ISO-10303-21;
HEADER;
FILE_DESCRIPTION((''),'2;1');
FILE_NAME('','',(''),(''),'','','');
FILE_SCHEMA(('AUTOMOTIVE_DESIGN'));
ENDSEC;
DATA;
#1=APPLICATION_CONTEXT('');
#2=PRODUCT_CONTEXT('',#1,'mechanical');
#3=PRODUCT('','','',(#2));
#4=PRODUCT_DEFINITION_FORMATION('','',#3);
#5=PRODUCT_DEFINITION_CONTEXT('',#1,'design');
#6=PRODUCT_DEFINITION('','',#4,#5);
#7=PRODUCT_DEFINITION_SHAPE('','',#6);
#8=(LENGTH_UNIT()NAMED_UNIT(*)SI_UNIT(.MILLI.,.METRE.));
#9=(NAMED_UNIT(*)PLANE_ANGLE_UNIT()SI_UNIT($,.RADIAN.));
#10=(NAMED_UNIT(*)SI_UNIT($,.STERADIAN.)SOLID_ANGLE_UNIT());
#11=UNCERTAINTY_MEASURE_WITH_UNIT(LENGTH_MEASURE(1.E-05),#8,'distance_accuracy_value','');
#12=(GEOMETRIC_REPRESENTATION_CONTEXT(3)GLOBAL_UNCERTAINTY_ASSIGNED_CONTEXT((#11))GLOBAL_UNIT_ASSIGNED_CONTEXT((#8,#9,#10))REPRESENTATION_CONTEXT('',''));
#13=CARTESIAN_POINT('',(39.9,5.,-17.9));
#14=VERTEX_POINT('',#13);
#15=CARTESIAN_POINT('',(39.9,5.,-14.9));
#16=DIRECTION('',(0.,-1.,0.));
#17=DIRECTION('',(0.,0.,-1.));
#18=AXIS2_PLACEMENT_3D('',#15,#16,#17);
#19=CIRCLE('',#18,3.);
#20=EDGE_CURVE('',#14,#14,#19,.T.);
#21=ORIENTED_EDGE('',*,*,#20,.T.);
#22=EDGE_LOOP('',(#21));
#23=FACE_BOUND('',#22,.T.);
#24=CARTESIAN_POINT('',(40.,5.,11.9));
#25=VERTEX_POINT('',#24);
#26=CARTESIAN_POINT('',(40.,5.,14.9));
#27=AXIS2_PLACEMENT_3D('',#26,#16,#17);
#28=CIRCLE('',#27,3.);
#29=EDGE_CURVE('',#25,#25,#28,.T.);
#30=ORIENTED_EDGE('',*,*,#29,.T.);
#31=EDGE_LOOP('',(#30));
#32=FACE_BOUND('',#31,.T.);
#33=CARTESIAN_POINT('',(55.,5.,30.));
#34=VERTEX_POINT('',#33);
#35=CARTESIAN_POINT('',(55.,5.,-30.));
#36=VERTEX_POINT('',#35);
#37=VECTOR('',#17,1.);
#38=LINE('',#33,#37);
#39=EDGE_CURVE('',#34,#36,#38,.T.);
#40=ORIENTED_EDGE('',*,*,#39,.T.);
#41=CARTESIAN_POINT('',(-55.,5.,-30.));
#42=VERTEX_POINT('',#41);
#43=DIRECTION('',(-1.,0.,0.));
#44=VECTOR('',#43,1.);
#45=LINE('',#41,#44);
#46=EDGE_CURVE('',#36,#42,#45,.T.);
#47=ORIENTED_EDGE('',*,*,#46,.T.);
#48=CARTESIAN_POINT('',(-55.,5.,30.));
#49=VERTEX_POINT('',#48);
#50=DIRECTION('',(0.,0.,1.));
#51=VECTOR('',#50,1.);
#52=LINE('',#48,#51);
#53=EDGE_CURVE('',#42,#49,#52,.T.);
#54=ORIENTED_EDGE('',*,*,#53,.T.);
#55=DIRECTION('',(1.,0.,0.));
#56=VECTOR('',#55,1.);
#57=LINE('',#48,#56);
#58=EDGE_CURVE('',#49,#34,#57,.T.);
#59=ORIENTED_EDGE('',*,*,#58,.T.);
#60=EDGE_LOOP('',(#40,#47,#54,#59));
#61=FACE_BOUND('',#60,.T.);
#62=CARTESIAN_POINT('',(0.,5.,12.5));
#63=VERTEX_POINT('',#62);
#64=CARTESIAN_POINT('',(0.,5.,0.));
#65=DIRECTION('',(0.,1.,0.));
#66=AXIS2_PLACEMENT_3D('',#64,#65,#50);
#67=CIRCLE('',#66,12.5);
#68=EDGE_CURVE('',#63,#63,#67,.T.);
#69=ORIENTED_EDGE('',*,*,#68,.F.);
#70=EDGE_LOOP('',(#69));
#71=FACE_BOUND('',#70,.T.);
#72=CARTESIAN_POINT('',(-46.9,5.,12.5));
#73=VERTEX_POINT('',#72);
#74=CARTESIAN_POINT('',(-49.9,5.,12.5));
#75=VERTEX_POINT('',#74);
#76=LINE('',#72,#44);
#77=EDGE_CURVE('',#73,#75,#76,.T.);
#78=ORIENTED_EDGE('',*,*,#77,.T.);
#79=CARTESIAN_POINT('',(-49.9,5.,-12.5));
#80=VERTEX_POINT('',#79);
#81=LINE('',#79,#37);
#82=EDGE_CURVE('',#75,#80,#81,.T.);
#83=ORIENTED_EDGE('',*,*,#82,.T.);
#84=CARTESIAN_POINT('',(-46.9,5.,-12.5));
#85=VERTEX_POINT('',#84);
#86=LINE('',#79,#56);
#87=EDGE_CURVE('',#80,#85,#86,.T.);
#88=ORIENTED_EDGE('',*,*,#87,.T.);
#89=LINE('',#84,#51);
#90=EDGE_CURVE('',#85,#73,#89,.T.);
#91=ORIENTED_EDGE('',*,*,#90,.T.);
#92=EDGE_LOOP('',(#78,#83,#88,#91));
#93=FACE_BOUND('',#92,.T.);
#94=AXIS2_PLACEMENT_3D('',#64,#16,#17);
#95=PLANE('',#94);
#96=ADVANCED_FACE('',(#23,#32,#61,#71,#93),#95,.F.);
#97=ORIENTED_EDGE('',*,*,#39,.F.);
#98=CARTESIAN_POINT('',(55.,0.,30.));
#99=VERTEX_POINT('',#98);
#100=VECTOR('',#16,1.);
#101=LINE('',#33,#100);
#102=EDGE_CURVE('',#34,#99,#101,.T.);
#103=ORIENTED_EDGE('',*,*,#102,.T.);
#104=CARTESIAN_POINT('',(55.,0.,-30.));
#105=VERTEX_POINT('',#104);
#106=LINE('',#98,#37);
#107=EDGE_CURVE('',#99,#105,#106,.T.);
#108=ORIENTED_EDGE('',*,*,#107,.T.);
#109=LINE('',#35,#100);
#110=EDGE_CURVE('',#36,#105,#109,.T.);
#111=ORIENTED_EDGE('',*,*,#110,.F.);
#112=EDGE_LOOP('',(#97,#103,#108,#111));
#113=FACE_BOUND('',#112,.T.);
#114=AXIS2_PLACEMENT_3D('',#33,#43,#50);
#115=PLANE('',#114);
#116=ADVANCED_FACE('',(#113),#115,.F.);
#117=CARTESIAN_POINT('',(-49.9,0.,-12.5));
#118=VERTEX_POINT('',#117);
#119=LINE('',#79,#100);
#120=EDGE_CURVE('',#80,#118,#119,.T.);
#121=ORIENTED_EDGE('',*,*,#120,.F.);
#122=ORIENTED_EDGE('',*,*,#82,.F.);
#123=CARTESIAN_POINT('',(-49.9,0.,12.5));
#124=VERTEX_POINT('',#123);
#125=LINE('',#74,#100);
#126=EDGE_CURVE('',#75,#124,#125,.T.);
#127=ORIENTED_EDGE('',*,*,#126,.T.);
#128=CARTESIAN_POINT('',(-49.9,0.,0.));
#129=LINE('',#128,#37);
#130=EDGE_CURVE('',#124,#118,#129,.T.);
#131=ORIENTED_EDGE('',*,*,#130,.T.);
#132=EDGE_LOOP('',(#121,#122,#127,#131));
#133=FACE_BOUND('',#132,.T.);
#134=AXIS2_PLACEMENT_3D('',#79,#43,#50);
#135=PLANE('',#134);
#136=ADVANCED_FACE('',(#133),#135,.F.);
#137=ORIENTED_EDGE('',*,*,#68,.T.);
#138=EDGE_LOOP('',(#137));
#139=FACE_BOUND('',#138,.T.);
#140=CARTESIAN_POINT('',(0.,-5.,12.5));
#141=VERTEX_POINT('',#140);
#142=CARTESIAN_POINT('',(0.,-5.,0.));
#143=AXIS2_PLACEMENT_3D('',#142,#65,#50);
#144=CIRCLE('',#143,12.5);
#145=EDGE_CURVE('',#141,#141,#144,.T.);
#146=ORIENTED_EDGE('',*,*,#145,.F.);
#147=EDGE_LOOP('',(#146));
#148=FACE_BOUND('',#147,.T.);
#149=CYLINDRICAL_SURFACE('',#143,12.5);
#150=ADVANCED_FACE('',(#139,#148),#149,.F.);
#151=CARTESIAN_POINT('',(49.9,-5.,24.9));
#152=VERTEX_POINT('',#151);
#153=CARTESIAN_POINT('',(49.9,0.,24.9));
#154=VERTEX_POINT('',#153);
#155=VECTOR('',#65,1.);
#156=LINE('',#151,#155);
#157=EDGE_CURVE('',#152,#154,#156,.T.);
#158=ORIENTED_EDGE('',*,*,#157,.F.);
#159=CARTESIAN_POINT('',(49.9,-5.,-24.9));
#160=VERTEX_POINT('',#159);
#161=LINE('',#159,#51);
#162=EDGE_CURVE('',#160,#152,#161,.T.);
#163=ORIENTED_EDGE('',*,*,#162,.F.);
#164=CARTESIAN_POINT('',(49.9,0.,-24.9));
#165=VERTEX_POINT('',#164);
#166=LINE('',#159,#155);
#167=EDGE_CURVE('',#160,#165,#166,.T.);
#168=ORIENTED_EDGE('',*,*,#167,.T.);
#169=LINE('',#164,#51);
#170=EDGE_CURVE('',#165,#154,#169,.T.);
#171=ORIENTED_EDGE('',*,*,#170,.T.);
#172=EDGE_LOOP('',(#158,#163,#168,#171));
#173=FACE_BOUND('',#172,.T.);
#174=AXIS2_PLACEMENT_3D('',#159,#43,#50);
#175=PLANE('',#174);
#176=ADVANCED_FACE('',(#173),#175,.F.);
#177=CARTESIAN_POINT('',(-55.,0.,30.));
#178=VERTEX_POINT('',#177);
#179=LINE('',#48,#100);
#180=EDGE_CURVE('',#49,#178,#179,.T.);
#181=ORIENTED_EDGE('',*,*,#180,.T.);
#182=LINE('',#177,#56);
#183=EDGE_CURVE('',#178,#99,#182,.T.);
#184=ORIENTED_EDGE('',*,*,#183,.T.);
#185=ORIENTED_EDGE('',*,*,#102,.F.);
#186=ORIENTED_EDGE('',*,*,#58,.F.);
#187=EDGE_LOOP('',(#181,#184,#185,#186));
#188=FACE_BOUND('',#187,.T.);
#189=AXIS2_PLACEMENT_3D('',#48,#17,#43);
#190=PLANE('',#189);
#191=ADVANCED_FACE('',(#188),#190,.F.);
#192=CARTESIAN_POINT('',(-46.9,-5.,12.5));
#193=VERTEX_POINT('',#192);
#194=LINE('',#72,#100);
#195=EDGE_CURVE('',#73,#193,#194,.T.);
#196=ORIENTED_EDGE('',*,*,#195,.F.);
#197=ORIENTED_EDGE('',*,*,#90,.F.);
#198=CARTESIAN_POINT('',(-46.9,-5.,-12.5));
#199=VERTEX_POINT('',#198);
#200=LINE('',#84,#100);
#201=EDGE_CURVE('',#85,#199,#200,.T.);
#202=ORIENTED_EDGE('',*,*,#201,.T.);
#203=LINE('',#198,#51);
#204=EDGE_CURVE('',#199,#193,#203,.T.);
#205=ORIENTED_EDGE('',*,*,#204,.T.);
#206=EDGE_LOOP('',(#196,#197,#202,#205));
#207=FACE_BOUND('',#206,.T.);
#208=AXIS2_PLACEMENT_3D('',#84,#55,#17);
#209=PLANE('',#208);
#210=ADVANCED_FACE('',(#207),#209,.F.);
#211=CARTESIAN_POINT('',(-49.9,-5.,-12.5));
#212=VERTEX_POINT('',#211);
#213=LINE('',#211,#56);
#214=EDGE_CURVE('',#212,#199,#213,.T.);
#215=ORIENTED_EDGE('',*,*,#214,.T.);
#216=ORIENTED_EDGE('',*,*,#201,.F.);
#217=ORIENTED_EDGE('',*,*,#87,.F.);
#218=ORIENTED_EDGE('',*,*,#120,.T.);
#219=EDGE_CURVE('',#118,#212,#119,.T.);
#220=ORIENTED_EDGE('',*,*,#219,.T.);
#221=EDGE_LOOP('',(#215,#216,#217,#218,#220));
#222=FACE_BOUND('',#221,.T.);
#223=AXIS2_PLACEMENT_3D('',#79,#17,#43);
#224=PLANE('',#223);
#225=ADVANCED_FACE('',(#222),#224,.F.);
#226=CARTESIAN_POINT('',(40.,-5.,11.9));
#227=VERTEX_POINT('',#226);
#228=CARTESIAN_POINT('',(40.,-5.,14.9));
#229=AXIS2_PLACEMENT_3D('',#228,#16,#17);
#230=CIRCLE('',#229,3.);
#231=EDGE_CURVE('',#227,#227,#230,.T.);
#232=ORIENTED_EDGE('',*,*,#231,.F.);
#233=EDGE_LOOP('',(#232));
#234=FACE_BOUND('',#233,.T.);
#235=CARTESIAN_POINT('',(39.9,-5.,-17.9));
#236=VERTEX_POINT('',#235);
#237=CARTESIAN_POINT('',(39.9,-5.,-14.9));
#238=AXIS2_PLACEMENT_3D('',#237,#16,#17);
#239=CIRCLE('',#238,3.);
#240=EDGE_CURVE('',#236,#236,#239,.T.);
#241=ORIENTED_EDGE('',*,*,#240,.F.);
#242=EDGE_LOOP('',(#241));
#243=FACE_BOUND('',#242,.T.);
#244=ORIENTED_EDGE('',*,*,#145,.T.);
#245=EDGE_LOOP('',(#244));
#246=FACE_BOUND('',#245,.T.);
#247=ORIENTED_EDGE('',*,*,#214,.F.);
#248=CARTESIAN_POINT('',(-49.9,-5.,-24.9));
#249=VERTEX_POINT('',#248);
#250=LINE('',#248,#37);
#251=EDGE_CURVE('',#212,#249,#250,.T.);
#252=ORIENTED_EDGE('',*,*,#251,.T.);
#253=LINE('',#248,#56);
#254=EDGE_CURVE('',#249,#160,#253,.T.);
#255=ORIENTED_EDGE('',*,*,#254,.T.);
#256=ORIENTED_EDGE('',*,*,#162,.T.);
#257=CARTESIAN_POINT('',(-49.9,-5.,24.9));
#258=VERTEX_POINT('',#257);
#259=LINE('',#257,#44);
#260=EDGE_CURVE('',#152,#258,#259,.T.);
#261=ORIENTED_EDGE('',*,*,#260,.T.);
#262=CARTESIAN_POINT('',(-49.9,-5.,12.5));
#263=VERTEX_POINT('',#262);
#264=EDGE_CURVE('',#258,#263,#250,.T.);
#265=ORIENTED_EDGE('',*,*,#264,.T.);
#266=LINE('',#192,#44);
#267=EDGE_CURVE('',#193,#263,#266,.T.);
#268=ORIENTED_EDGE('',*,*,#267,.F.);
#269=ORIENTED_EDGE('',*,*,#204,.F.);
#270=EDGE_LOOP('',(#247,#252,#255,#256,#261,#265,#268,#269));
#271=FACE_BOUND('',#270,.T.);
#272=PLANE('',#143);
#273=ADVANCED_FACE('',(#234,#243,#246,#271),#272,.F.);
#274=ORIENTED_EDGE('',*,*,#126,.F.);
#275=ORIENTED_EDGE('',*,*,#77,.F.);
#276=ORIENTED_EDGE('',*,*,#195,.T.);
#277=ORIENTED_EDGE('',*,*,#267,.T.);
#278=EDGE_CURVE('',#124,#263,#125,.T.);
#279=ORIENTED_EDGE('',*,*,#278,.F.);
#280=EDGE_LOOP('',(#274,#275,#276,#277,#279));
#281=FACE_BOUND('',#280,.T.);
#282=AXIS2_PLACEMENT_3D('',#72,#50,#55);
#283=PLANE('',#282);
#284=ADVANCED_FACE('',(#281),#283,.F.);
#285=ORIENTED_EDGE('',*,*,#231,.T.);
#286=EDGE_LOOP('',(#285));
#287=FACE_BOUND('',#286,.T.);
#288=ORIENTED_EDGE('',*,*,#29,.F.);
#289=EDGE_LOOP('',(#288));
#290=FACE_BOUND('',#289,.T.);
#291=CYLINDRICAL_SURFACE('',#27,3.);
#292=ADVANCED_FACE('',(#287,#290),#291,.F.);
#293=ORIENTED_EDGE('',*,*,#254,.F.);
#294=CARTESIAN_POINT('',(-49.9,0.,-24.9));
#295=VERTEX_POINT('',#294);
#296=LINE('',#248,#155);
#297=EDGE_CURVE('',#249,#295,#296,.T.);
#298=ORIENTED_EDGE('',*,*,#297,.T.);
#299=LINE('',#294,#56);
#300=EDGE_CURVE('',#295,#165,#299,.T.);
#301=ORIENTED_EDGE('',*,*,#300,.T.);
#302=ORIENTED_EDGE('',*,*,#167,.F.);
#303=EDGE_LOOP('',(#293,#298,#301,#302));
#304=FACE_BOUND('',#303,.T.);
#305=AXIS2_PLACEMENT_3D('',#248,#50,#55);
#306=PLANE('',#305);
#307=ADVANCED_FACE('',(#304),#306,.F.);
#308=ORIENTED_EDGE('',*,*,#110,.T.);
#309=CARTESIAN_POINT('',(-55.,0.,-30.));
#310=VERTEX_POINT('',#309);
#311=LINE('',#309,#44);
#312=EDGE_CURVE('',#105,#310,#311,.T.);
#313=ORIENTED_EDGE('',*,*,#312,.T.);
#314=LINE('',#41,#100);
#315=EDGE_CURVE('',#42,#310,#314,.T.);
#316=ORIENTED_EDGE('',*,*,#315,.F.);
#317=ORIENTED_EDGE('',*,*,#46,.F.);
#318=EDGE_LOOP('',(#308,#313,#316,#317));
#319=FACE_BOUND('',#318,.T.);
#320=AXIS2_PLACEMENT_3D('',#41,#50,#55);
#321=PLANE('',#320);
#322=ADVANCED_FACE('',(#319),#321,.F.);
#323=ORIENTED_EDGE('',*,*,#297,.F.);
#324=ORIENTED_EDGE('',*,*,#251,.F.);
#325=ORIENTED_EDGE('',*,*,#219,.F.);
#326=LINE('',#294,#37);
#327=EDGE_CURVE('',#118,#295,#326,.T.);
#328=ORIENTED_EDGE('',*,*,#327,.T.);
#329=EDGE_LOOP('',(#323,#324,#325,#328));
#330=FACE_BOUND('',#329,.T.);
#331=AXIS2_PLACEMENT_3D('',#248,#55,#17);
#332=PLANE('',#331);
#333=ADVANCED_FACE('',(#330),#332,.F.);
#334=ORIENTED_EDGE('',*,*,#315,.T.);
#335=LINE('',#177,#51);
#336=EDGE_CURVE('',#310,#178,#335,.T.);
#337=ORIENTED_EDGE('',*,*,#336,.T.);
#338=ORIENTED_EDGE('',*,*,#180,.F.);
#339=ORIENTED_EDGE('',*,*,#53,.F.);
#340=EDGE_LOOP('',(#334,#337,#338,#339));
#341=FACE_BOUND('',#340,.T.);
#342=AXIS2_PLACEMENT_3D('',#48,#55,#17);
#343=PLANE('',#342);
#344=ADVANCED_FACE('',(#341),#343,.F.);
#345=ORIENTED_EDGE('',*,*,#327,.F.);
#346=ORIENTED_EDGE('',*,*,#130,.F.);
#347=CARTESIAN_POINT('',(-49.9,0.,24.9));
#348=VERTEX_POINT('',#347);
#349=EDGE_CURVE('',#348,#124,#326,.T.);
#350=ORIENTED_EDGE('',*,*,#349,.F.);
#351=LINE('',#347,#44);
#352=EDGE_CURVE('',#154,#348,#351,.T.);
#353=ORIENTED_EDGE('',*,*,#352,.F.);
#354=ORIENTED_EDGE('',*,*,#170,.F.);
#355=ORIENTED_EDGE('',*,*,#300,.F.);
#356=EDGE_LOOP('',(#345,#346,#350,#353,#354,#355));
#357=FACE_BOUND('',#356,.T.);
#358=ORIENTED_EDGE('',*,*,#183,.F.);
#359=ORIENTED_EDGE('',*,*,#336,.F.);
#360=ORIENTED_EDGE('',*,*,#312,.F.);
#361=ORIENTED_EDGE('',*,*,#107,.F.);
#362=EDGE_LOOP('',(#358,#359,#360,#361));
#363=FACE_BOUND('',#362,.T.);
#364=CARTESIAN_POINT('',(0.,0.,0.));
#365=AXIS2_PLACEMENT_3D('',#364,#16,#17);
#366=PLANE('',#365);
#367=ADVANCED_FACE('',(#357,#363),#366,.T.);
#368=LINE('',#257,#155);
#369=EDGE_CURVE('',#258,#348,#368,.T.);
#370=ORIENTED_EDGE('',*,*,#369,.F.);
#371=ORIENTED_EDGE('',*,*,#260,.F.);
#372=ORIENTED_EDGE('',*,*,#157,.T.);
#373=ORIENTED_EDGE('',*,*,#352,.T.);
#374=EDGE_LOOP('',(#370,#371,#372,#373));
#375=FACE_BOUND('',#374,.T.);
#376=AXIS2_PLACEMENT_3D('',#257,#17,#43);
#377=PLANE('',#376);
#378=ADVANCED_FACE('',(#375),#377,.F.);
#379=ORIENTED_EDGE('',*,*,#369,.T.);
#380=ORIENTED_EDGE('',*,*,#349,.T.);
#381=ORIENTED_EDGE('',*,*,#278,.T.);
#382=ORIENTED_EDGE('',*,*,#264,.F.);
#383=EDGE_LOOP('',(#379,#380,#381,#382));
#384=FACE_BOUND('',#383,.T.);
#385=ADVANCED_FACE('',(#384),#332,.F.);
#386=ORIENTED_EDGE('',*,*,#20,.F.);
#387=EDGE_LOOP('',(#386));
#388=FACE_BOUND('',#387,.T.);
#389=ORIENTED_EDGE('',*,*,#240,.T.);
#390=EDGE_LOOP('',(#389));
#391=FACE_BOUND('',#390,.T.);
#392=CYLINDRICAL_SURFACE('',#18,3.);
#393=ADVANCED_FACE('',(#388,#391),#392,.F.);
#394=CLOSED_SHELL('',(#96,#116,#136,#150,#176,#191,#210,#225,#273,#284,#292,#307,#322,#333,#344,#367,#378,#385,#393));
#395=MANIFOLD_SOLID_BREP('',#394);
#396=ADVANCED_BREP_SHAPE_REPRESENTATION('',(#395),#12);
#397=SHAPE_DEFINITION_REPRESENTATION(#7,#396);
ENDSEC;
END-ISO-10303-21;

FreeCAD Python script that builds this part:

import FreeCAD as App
import Part
import Sketcher

V = App.Vector


def add_polygon(sketch, points):
    """Adds a closed chain of lines whose ends are joined by coincident constraints."""
    first, n = sketch.GeometryCount, len(points)
    for a, b in zip(points, points[1:] + points[:1]):
        sketch.addGeometry(Part.LineSegment(App.Vector(*a, 0), App.Vector(*b, 0)), False)
    for i in range(n):
        sketch.addConstraint(Sketcher.Constraint("Coincident", first + i, 2, first + (i + 1) % n, 1))

doc = App.newDocument("Part")
body = doc.addObject("PartDesign::Body", "Body")

# Sketch on XZ plane
sketch1 = doc.addObject("Sketcher::SketchObject", "Sketch")
body.addObject(sketch1)
sketch1.AttachmentSupport = (doc.XZ_Plane, [""])
sketch1.MapMode = "FlatFace"
add_polygon(sketch1, [(-55, -30), (-55, 30), (55, 30), (55, -30)])  # lines 0-3
sketch1.addConstraint([
    Sketcher.Constraint("Vertical", 0),
    Sketcher.Constraint("Horizontal", 1),
    Sketcher.Constraint("Vertical", 2),
    Sketcher.Constraint("Horizontal", 3),
    Sketcher.Constraint("Symmetric", 0, 2, 2, 2, -1, 1),
    Sketcher.Constraint("DistanceX", 1, 1, 1, 2, 110.0),
    Sketcher.Constraint("DistanceY", 0, 1, 0, 2, 60.0),
])
pad1 = doc.addObject("PartDesign::Pad", "Pad")
body.addObject(pad1)
pad1.Profile = sketch1
pad1.Length = 5
pad1.Reversed = True

# Sketch on XZ plane
sketch2 = doc.addObject("Sketcher::SketchObject", "Sketch001")
body.addObject(sketch2)
sketch2.AttachmentSupport = (doc.XZ_Plane, [""])
sketch2.MapMode = "FlatFace"
add_polygon(sketch2, [(-49.9, 24.9), (-49.9, -24.9), (49.9, -24.9), (49.9, 24.9)])  # lines 0-3
sketch2.addConstraint([
    Sketcher.Constraint("Vertical", 0),
    Sketcher.Constraint("Horizontal", 1),
    Sketcher.Constraint("Vertical", 2),
    Sketcher.Constraint("Horizontal", 3),
    Sketcher.Constraint("Symmetric", 0, 2, 2, 2, -1, 1),
    Sketcher.Constraint("DistanceX", 1, 1, 1, 2, 99.8),
    Sketcher.Constraint("DistanceY", 0, 2, 0, 1, 49.8),
])
pad2 = doc.addObject("PartDesign::Pad", "Pad001")
body.addObject(pad2)
pad2.Profile = sketch2
pad2.Length = 5

# Sketch on XZ plane
sketch3 = doc.addObject("Sketcher::SketchObject", "Sketch002")
body.addObject(sketch3)
sketch3.AttachmentSupport = (doc.XZ_Plane, [""])
sketch3.MapMode = "FlatFace"
sketch3.AttachmentOffset = App.Placement(V(0, 0, 5), App.Rotation())
add_polygon(sketch3, [(-49.9, 12.5), (-49.9, -12.5), (-46.9, -12.5), (-46.9, 12.5)])  # lines 0-3
sketch3.addConstraint([
    Sketcher.Constraint("Vertical", 0),
    Sketcher.Constraint("Horizontal", 1),
    Sketcher.Constraint("Vertical", 2),
    Sketcher.Constraint("Horizontal", 3),
    Sketcher.Constraint("DistanceX", 1, 1, 1, 2, 3.0),
    Sketcher.Constraint("DistanceY", 0, 2, 0, 1, 25.0),
    Sketcher.Constraint("DistanceX", 0, 2, -1, 1, 49.9),
    Sketcher.Constraint("DistanceY", 0, 2, -1, 1, 12.5),
])
pocket1 = doc.addObject("PartDesign::Pocket", "Pocket")
body.addObject(pocket1)
pocket1.Profile = sketch3
pocket1.Length = 10

# Sketch on XZ plane
sketch4 = doc.addObject("Sketcher::SketchObject", "Sketch003")
body.addObject(sketch4)
sketch4.AttachmentSupport = (doc.XZ_Plane, [""])
sketch4.MapMode = "FlatFace"
sketch4.AttachmentOffset = App.Placement(V(0, 0, 5), App.Rotation())
sketch4.addGeometry([
    Part.Circle(V(39.9, -14.9, 0), V(0, 0, 1), 3),
    Part.Circle(V(40, 14.9, 0), V(0, 0, 1), 3),
], False)
sketch4.addConstraint([
    Sketcher.Constraint("Equal", 0, 1),
    Sketcher.Constraint("Diameter", 0, 6.0),
    Sketcher.Constraint("DistanceX", -1, 1, 1, 3, 40.0),
    Sketcher.Constraint("DistanceX", -1, 1, 0, 3, 39.9),
    Sketcher.Constraint("DistanceY", 0, 3, -1, 1, 14.9),
    Sketcher.Constraint("DistanceY", -1, 1, 1, 3, 14.9),
])
pocket2 = doc.addObject("PartDesign::Pocket", "Pocket001")
body.addObject(pocket2)
pocket2.Profile = sketch4
pocket2.Length = 10

# Sketch on XZ plane
sketch5 = doc.addObject("Sketcher::SketchObject", "Sketch004")
body.addObject(sketch5)
sketch5.AttachmentSupport = (doc.XZ_Plane, [""])
sketch5.MapMode = "FlatFace"
sketch5.AttachmentOffset = App.Placement(V(0, 0, -5), App.Rotation())
sketch5.addGeometry(Part.Circle(V(0, 0, 0), V(0, 0, 1), 12.5), False)
sketch5.addConstraint([
    Sketcher.Constraint("Coincident", 0, 3, -1, 1),
    Sketcher.Constraint("Diameter", 0, 25.0),
])
pocket3 = doc.addObject("PartDesign::Pocket", "Pocket002")
body.addObject(pocket3)
pocket3.Profile = sketch5
pocket3.Length = 10
pocket3.Reversed = True

doc.recompute()
